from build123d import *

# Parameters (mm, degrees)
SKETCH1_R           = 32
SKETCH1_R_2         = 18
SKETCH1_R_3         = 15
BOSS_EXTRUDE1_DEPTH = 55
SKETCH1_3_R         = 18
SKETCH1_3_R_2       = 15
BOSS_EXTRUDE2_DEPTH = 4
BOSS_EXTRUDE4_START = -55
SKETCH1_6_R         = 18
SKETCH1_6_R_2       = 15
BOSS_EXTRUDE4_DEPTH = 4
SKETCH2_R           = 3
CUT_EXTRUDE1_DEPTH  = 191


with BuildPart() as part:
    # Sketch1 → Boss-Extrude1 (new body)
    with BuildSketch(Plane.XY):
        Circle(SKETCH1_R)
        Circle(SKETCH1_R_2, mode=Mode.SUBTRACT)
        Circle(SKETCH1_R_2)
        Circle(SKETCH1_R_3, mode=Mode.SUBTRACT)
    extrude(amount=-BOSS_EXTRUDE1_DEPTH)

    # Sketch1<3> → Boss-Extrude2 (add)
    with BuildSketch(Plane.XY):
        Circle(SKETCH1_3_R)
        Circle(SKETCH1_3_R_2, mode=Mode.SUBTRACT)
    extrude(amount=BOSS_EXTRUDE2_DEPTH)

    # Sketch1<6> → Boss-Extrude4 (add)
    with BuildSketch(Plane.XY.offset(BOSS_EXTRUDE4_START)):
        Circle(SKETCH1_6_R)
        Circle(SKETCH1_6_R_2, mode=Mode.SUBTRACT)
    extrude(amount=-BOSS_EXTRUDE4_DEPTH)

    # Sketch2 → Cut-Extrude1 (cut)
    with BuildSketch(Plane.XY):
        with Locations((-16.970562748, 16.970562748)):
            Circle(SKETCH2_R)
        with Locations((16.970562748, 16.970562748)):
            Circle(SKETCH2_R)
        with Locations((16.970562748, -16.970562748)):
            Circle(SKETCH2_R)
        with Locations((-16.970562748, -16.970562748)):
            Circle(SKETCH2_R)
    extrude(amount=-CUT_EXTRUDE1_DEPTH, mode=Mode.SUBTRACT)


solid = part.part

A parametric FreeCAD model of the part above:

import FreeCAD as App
import Part
import Sketcher
from FreeCAD import Vector

doc = App.newDocument("Part")
body = doc.addObject("PartDesign::Body", "Body")

# Sketch on XY plane
sketch1 = doc.addObject("Sketcher::SketchObject", "Sketch")
body.addObject(sketch1)
sketch1.AttachmentSupport = (doc.XY_Plane, [""])
sketch1.MapMode = "FlatFace"
sketch1.addGeometry(Part.Circle(Vector(0, 0, 0), Vector(0, 0, 1), 32), False)
sketch1.addGeometry(Part.Circle(Vector(0, 0, 0), Vector(0, 0, 1), 15), False)
sketch1.addConstraint(Sketcher.Constraint("Coincident", 0, 3, -1, 1))
sketch1.addConstraint(Sketcher.Constraint("Coincident", 1, 3, -1, 1))
sketch1.addConstraint(Sketcher.Constraint("Diameter", 0, 64.0))
sketch1.addConstraint(Sketcher.Constraint("Diameter", 1, 30.0))
pad1 = doc.addObject("PartDesign::Pad", "Pad")
body.addObject(pad1)
pad1.Profile = sketch1
pad1.Length = 55
pad1.Reversed = True

# Sketch on XY plane
sketch2 = doc.addObject("Sketcher::SketchObject", "Sketch001")
body.addObject(sketch2)
sketch2.AttachmentSupport = (doc.XY_Plane, [""])
sketch2.MapMode = "FlatFace"
sketch2.addGeometry(Part.Circle(Vector(0, 0, 0), Vector(0, 0, 1), 18), False)
sketch2.addGeometry(Part.Circle(Vector(0, 0, 0), Vector(0, 0, 1), 15), False)
sketch2.addConstraint(Sketcher.Constraint("Coincident", 0, 3, -1, 1))
sketch2.addConstraint(Sketcher.Constraint("Coincident", 1, 3, -1, 1))
sketch2.addConstraint(Sketcher.Constraint("Diameter", 0, 36.0))
sketch2.addConstraint(Sketcher.Constraint("Diameter", 1, 30.0))
pad2 = doc.addObject("PartDesign::Pad", "Pad001")
body.addObject(pad2)
pad2.Profile = sketch2
pad2.Length = 4

# Sketch on XY plane
sketch3 = doc.addObject("Sketcher::SketchObject", "Sketch002")
body.addObject(sketch3)
sketch3.AttachmentSupport = (doc.XY_Plane, [""])
sketch3.MapMode = "FlatFace"
sketch3.AttachmentOffset = App.Placement(Vector(0, 0, -55), App.Rotation())
sketch3.addGeometry(Part.Circle(Vector(0, 0, 0), Vector(0, 0, 1), 18), False)
sketch3.addGeometry(Part.Circle(Vector(0, 0, 0), Vector(0, 0, 1), 15), False)
sketch3.addConstraint(Sketcher.Constraint("Coincident", 0, 3, -1, 1))
sketch3.addConstraint(Sketcher.Constraint("Coincident", 1, 3, -1, 1))
sketch3.addConstraint(Sketcher.Constraint("Diameter", 0, 36.0))
sketch3.addConstraint(Sketcher.Constraint("Diameter", 1, 30.0))
pad3 = doc.addObject("PartDesign::Pad", "Pad002")
body.addObject(pad3)
pad3.Profile = sketch3
pad3.Length = 4
pad3.Reversed = True

# Sketch on XY plane
sketch4 = doc.addObject("Sketcher::SketchObject", "Sketch003")
body.addObject(sketch4)
sketch4.AttachmentSupport = (doc.XY_Plane, [""])
sketch4.MapMode = "FlatFace"
sketch4.addGeometry(Part.Circle(Vector(-17, 17, 0), Vector(0, 0, 1), 3), False)
sketch4.addGeometry(Part.Circle(Vector(17, 17, 0), Vector(0, 0, 1), 3), False)
sketch4.addGeometry(Part.Circle(Vector(17, -17, 0), Vector(0, 0, 1), 3), False)
sketch4.addGeometry(Part.Circle(Vector(-17, -17, 0), Vector(0, 0, 1), 3), False)
sketch4.addConstraint(Sketcher.Constraint("Equal", 0, 1))
sketch4.addConstraint(Sketcher.Constraint("Equal", 1, 2))
sketch4.addConstraint(Sketcher.Constraint("Equal", 2, 3))
sketch4.addConstraint(Sketcher.Constraint("Symmetric", 0, 3, 2, 3, -1, 1))
sketch4.addConstraint(Sketcher.Constraint("Symmetric", 1, 3, 3, 3, -1, 1))
sketch4.addConstraint(Sketcher.Constraint("Symmetric", 0, 3, 1, 3, -2))
sketch4.addConstraint(Sketcher.Constraint("Diameter", 0, 6.0))
sketch4.addConstraint(Sketcher.Constraint("DistanceX", 0, 3, -1, 1, 16.970563))
sketch4.addConstraint(Sketcher.Constraint("DistanceY", -1, 1, 0, 3, 16.970563))
pocket1 = doc.addObject("PartDesign::Pocket", "Pocket")
body.addObject(pocket1)
pocket1.Profile = sketch4
pocket1.Length = 191

doc.recompute()
